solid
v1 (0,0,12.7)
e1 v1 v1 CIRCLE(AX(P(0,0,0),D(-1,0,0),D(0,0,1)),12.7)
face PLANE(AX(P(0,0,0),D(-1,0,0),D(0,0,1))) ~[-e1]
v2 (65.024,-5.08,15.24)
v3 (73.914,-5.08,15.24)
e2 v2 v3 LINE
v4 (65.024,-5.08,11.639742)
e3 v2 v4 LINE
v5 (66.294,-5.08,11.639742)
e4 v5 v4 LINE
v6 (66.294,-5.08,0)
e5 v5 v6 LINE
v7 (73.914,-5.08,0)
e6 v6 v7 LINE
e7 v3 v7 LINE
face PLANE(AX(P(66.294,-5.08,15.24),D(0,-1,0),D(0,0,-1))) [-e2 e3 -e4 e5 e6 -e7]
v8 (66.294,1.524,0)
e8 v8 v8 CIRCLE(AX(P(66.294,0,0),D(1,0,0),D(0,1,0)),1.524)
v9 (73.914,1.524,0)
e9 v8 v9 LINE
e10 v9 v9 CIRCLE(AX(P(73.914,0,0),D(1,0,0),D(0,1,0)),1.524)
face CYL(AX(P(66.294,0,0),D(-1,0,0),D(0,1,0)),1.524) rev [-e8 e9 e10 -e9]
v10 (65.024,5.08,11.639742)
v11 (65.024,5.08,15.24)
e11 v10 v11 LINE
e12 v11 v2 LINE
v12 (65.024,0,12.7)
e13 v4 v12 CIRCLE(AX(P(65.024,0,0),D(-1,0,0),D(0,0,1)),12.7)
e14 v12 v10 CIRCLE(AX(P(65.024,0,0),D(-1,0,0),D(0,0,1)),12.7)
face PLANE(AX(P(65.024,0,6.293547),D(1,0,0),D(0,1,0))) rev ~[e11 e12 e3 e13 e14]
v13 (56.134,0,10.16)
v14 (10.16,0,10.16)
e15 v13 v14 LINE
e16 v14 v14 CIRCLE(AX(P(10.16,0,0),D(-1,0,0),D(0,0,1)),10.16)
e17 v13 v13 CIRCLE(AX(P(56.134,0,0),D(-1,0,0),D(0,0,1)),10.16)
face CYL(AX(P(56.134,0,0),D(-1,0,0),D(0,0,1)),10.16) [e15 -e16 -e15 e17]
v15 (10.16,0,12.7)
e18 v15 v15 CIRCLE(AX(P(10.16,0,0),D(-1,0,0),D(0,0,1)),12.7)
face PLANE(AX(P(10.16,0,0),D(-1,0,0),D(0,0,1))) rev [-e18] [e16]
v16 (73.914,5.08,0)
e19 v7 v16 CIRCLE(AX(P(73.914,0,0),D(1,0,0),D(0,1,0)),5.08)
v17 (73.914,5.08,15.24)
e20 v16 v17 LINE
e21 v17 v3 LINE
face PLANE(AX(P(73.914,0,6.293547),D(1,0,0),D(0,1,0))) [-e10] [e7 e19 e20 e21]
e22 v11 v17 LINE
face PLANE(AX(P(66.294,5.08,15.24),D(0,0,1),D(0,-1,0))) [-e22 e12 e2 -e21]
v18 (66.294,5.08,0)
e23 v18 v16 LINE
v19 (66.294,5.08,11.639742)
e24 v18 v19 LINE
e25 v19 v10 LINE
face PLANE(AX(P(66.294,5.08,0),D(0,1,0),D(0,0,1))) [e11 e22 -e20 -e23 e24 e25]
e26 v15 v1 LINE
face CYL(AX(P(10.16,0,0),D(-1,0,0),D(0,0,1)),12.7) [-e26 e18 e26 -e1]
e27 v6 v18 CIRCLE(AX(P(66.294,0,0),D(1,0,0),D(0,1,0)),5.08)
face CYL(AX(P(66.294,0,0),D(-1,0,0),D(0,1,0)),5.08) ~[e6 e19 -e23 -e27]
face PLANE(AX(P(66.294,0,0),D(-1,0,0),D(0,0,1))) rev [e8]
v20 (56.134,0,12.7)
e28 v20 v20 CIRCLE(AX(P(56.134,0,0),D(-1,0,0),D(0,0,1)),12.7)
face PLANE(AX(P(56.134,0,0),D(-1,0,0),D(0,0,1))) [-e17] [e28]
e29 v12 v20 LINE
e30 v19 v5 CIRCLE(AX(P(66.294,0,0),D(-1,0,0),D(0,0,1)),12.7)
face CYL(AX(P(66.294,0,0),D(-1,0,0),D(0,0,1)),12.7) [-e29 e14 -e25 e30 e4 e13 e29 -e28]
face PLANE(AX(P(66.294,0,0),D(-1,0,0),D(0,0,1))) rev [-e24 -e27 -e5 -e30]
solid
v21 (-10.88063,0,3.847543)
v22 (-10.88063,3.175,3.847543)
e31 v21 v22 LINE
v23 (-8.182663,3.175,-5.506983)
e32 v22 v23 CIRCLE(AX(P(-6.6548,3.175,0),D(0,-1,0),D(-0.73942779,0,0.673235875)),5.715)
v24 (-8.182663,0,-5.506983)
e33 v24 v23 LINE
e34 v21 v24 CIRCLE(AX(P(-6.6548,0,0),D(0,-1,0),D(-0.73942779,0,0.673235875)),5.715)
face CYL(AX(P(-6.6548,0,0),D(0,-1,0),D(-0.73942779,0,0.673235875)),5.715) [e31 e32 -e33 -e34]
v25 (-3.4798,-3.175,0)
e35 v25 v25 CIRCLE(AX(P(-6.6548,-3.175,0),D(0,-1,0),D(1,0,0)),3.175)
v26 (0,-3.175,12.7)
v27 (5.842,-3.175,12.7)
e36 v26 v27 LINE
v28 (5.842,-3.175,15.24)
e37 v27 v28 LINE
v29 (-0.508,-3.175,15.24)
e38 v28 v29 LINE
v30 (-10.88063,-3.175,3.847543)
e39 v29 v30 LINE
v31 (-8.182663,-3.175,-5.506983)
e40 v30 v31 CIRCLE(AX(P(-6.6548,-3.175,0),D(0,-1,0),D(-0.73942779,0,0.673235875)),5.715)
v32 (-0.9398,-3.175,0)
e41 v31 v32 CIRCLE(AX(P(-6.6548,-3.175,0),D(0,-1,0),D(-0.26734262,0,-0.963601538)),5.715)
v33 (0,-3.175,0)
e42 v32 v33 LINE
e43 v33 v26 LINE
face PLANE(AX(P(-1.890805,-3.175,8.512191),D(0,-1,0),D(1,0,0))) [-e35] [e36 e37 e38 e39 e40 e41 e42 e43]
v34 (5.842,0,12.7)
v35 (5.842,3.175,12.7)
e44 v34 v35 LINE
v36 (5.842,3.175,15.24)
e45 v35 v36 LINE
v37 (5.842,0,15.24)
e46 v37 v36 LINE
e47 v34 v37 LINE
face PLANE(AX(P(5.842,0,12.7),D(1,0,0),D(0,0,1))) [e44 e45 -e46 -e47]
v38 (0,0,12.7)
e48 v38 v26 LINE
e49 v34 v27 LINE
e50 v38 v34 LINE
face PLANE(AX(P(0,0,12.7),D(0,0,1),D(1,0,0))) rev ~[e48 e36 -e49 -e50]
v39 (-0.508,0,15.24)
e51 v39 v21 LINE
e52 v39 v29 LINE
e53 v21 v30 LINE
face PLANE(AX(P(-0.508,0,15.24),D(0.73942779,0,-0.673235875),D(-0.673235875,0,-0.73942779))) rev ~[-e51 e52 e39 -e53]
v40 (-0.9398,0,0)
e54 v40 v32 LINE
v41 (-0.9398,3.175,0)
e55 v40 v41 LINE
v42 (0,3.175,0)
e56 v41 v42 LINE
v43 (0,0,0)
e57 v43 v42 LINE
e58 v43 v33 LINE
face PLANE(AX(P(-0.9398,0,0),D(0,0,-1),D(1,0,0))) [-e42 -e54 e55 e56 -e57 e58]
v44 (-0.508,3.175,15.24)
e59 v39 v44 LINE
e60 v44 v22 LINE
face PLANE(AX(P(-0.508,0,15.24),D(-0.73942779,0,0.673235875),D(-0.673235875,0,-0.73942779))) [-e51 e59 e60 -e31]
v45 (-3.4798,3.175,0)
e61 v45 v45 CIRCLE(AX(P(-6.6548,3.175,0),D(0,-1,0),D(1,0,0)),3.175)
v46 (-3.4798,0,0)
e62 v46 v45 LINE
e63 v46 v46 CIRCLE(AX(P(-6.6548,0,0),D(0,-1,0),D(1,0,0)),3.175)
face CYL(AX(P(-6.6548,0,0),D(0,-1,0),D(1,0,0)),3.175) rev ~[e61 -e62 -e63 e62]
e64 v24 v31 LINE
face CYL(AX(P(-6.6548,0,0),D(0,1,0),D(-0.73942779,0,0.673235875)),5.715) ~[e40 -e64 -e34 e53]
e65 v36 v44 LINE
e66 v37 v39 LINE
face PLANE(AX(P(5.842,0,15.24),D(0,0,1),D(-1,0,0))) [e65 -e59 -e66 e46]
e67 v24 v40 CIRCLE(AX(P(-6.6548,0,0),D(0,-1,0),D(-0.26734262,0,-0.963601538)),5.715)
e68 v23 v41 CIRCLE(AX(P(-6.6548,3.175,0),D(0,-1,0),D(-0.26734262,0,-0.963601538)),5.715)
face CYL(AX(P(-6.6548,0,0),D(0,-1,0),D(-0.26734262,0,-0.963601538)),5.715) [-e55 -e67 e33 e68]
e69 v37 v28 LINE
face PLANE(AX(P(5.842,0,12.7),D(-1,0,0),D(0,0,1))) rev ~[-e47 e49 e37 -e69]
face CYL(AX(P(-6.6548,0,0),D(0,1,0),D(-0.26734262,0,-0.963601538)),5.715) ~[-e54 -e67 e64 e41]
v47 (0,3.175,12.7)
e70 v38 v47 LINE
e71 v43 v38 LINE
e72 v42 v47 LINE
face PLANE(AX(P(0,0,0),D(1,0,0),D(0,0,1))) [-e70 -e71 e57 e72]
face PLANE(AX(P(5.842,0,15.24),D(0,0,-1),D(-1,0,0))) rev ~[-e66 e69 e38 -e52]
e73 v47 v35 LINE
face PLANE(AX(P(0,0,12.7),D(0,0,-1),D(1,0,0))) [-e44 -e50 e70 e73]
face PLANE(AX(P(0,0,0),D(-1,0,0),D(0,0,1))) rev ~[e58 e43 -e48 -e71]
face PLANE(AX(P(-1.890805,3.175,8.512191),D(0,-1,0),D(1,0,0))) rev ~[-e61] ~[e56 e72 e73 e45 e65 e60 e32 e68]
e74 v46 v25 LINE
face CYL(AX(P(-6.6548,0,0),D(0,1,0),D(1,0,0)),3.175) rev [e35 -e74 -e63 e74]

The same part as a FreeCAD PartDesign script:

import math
import FreeCAD as App
import Part
import Sketcher
Q = App.Units.Quantity


def add_polygon(sketch, points):
    """Adds a closed chain of lines whose ends are joined by coincident constraints."""
    first, n = sketch.GeometryCount, len(points)
    for a, b in zip(points, points[1:] + points[:1]):
        sketch.addGeometry(Part.LineSegment(App.Vector(*a, 0), App.Vector(*b, 0)), False)
    for i in range(n):
        sketch.addConstraint(Sketcher.Constraint("Coincident", first + i, 2, first + (i + 1) % n, 1))

doc = App.newDocument("Part")
body = doc.addObject("PartDesign::Body", "Body")

sketch1 = body.newObject("Sketcher::SketchObject", "Sketch")
sketch1.AttachmentSupport = (doc.getObject("XZ_Plane"), [""])
sketch1.MapMode = "FlatFace"
add_polygon(sketch1, [(66.3, 0), (66.3, 12.7), (56.1, 12.7), (56.1, 10.2), (10.2, 10.2), (10.2, 12.7), (0, 12.7), (0, 0)])
sketch1.addConstraint([
    Sketcher.Constraint("Vertical", 0),
    Sketcher.Constraint("Horizontal", 1),
    Sketcher.Constraint("Vertical", 2),
    Sketcher.Constraint("Horizontal", 3),
    Sketcher.Constraint("Vertical", 4),
    Sketcher.Constraint("Horizontal", 5),
    Sketcher.Constraint("Vertical", 6),
    Sketcher.Constraint("Horizontal", 7),
    Sketcher.Constraint("Coincident", 6, 2, -1, 1),
    Sketcher.Constraint("Horizontal", 1, 2, 4, 2),
    Sketcher.Constraint("Equal", 1, 5),
    Sketcher.Constraint("DistanceX", 1, 2, 1, 1, Q("0.4 in")),
    Sketcher.Constraint("DistanceY", 0, 1, 0, 2, Q("0.5 in")),
    Sketcher.Constraint("DistanceY", 2, 2, 2, 1, Q("0.1 in")),
    Sketcher.Constraint("DistanceX", 3, 2, 3, 1, Q("1.81 in")),
])
revolution = body.newObject("PartDesign::Revolution", "Revolution")
revolution.Profile = sketch1
revolution.ReferenceAxis = (sketch1, ["H_Axis"])
revolution.Angle = 360

sketch2 = body.newObject("Sketcher::SketchObject", "Sketch001")
sketch2.AttachmentSupport = (doc.getObject("YZ_Plane"), [""])
sketch2.MapMode = "FlatFace"
sketch2.AttachmentOffset = App.Placement(App.Vector(0, 0, 2.61 * 25.4), App.Rotation())
sketch2.addGeometry([
    Part.LineSegment(App.Vector(5.1, 0, 0), App.Vector(5.1, 15.2, 0)),
    Part.LineSegment(App.Vector(5.1, 15.2, 0), App.Vector(-5.1, 15.2, 0)),
    Part.LineSegment(App.Vector(-5.1, 15.2, 0), App.Vector(-5.1, 0, 0)),
    Part.ArcOfCircle(Part.Circle(App.Vector(0, 0, 0), App.Vector(0, 0, 1), 5.1), math.radians(180), math.radians(360)),
    Part.Circle(App.Vector(0, 0, 0), App.Vector(0, 0, 1), 1.5),
], False)
sketch2.addConstraint([
    Sketcher.Constraint("Coincident", 0, 2, 1, 1),
    Sketcher.Constraint("Coincident", 1, 2, 2, 1),
    Sketcher.Constraint("Tangent", 2, 2, 3, 1),
    Sketcher.Constraint("Tangent", 3, 2, 0, 1),
    Sketcher.Constraint("Vertical", 0),
    Sketcher.Constraint("Horizontal", 1),
    Sketcher.Constraint("Vertical", 2),
    Sketcher.Constraint("Coincident", 3, 3, -1, 1),
    Sketcher.Constraint("Coincident", 4, 3, -1, 1),
    Sketcher.Constraint("Radius", 3, Q("0.2 in")),
    Sketcher.Constraint("Diameter", 4, Q("0.12 in")),
    Sketcher.Constraint("DistanceY", 0, 1, 0, 2, Q("0.6 in")),
])
pad1 = body.newObject("PartDesign::Pad", "Pad")
pad1.Profile = sketch2
pad1.Type = "TwoLengths"
pad1.Length = Q("0.3 in")
pad1.Length2 = Q("0.05 in")
body2 = doc.addObject("PartDesign::Body", "Body001")

sketch3 = body2.newObject("Sketcher::SketchObject", "Sketch002")
sketch3.AttachmentSupport = (doc.getObject("XZ_Plane001"), [""])
sketch3.MapMode = "FlatFace"
sketch3.addGeometry([
    Part.LineSegment(App.Vector(-0.9, 0, 0), App.Vector(0, 0, 0)),
    Part.LineSegment(App.Vector(0, 0, 0), App.Vector(0, 12.7, 0)),
    Part.LineSegment(App.Vector(0, 12.7, 0), App.Vector(5.8, 12.7, 0)),
    Part.LineSegment(App.Vector(5.8, 12.7, 0), App.Vector(5.8, 15.2, 0)),
    Part.LineSegment(App.Vector(5.8, 15.2, 0), App.Vector(-0.5, 15.2, 0)),
    Part.LineSegment(App.Vector(-0.5, 15.2, 0), App.Vector(-10.9, 3.8, 0)),
    Part.ArcOfCircle(Part.Circle(App.Vector(-6.7, 0, 0), App.Vector(0, 0, 1), 5.7), math.radians(138), math.radians(254)),
    Part.ArcOfCircle(Part.Circle(App.Vector(-6.7, 0, 0), App.Vector(0, 0, 1), 5.7), math.radians(-106), math.radians(0)),
    Part.Circle(App.Vector(-6.7, 0, 0), App.Vector(0, 0, 1), 3.2),
], False)
sketch3.addConstraint([
    Sketcher.Constraint("Coincident", 0, 2, 1, 1),
    Sketcher.Constraint("Coincident", 1, 2, 2, 1),
    Sketcher.Constraint("Coincident", 2, 2, 3, 1),
    Sketcher.Constraint("Coincident", 3, 2, 4, 1),
    Sketcher.Constraint("Coincident", 4, 2, 5, 1),
    Sketcher.Constraint("Tangent", 5, 2, 6, 1),
    Sketcher.Constraint("Tangent", 6, 2, 7, 1),
    Sketcher.Constraint("Coincident", 7, 2, 0, 1),
    Sketcher.Constraint("Horizontal", 0),
    Sketcher.Constraint("Vertical", 1),
    Sketcher.Constraint("Horizontal", 2),
    Sketcher.Constraint("Vertical", 3),
    Sketcher.Constraint("Horizontal", 4),
    Sketcher.Constraint("Coincident", 0, 2, -1, 1),
    Sketcher.Constraint("Coincident", 8, 3, 6, 3),
    Sketcher.Constraint("Equal", 6, 7),
    Sketcher.Constraint("PointOnObject", 6, 3, -1),
    Sketcher.Constraint("Diameter", 8, Q("0.25 in")),
    Sketcher.Constraint("DistanceY", 1, 1, 1, 2, Q("0.5 in")),
    Sketcher.Constraint("DistanceY", 3, 1, 3, 2, Q("0.1 in")),
    Sketcher.Constraint("Radius", 6, Q("0.225 in")),
    Sketcher.Constraint("DistanceX", 2, 1, 2, 2, Q("0.23 in")),
    Sketcher.Constraint("DistanceX", 4, 2, 4, 1, Q("0.25 in")),
    Sketcher.Constraint("DistanceX", 0, 1, 0, 2, Q("0.037 in")),
    Sketcher.Constraint("DistanceX", 6, 2, -1, 1, Q("8.182663 mm")),
])
pad2 = body2.newObject("PartDesign::Pad", "Pad001")
pad2.Profile = sketch3
pad2.Length = Q("0.25 in")
pad2.Midplane = True

doc.recompute()
